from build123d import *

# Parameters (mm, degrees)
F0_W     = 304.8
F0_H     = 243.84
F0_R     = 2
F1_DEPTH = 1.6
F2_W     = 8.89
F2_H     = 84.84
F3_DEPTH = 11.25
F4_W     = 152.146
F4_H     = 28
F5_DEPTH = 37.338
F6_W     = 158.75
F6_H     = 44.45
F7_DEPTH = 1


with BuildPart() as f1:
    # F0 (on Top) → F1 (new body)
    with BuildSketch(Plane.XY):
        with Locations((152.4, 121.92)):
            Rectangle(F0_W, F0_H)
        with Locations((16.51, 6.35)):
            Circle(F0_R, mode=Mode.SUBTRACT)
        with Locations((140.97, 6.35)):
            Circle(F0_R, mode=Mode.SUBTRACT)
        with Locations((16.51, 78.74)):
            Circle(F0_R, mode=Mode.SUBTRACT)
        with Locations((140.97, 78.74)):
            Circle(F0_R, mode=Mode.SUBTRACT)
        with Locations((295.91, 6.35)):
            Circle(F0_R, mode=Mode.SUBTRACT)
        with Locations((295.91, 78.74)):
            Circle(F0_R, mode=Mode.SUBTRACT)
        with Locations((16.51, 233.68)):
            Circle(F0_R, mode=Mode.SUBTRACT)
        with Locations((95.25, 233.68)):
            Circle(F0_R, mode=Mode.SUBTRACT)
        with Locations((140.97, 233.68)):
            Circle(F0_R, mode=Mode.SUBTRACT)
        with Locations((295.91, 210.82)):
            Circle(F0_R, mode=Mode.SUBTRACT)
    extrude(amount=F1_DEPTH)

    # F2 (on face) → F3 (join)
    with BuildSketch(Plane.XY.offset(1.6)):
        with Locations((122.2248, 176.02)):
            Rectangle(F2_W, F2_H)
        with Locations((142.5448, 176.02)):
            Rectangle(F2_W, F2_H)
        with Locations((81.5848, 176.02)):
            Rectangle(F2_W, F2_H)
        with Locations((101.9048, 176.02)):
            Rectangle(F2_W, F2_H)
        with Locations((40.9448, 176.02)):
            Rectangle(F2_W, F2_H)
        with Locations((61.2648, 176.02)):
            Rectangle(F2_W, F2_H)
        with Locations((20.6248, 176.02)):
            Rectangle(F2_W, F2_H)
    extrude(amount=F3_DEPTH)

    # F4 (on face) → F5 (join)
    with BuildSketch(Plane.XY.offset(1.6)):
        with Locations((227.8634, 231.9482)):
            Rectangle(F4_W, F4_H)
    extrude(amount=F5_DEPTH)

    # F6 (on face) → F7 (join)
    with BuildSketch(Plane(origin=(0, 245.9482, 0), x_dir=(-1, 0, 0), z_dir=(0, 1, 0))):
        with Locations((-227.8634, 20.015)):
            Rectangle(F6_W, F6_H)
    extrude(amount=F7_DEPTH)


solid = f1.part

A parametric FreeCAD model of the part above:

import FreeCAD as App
import Part
import Sketcher

V = App.Vector
Q = App.Units.Quantity

doc = App.newDocument("Part")
body = doc.addObject("PartDesign::Body", "Body")

# Sketch on XY plane
sketch1 = body.newObject("Sketcher::SketchObject", "Sketch")
sketch1.AttachmentSupport = (doc.getObject("XY_Plane"), [""])
sketch1.MapMode = "FlatFace"
sketch1.addGeometry(Part.LineSegment(V(0, 243.84, 0), V(0, 0, 0)), False)
sketch1.addGeometry(Part.LineSegment(V(0, 0, 0), V(304.8, 0, 0)), False)
sketch1.addGeometry(Part.LineSegment(V(304.8, 0, 0), V(304.8, 243.84, 0)), False)
sketch1.addGeometry(Part.LineSegment(V(304.8, 243.84, 0), V(0, 243.84, 0)), False)
sketch1.addGeometry(Part.Circle(V(16.51, 6.35, 0), V(0, 0, 1), 2), False)
sketch1.addGeometry(Part.Circle(V(140.97, 6.35, 0), V(0, 0, 1), 2), False)
sketch1.addGeometry(Part.Circle(V(16.51, 78.74, 0), V(0, 0, 1), 2), False)
sketch1.addGeometry(Part.Circle(V(140.97, 78.74, 0), V(0, 0, 1), 2), False)
sketch1.addGeometry(Part.Circle(V(295.91, 6.35, 0), V(0, 0, 1), 2), False)
sketch1.addGeometry(Part.Circle(V(295.91, 78.74, 0), V(0, 0, 1), 2), False)
sketch1.addGeometry(Part.Circle(V(16.51, 233.68, 0), V(0, 0, 1), 2), False)
sketch1.addGeometry(Part.Circle(V(95.25, 233.68, 0), V(0, 0, 1), 2), False)
sketch1.addGeometry(Part.Circle(V(140.97, 233.68, 0), V(0, 0, 1), 2), False)
sketch1.addGeometry(Part.Circle(V(295.91, 210.82, 0), V(0, 0, 1), 2), False)
sketch1.addConstraint(Sketcher.Constraint("Coincident", 0, 2, 1, 1))
sketch1.addConstraint(Sketcher.Constraint("Coincident", 1, 2, 2, 1))
sketch1.addConstraint(Sketcher.Constraint("Coincident", 2, 2, 3, 1))
sketch1.addConstraint(Sketcher.Constraint("Coincident", 3, 2, 0, 1))
sketch1.addConstraint(Sketcher.Constraint("Vertical", 0))
sketch1.addConstraint(Sketcher.Constraint("Horizontal", 1))
sketch1.addConstraint(Sketcher.Constraint("Vertical", 2))
sketch1.addConstraint(Sketcher.Constraint("Horizontal", 3))
sketch1.addConstraint(Sketcher.Constraint("Coincident", 0, 2, -1, 1))
sketch1.addConstraint(Sketcher.Constraint("Equal", 4, 5))
sketch1.addConstraint(Sketcher.Constraint("Equal", 5, 6))
sketch1.addConstraint(Sketcher.Constraint("Equal", 6, 7))
sketch1.addConstraint(Sketcher.Constraint("Equal", 7, 8))
sketch1.addConstraint(Sketcher.Constraint("Equal", 8, 9))
sketch1.addConstraint(Sketcher.Constraint("Equal", 9, 10))
sketch1.addConstraint(Sketcher.Constraint("Equal", 10, 11))
sketch1.addConstraint(Sketcher.Constraint("Equal", 11, 12))
sketch1.addConstraint(Sketcher.Constraint("Equal", 12, 13))
sketch1.addConstraint(Sketcher.Constraint("Horizontal", 4, 3, 5, 3))
sketch1.addConstraint(Sketcher.Constraint("Horizontal", 6, 3, 7, 3))
sketch1.addConstraint(Sketcher.Constraint("Horizontal", 5, 3, 8, 3))
sketch1.addConstraint(Sketcher.Constraint("Horizontal", 7, 3, 9, 3))
sketch1.addConstraint(Sketcher.Constraint("Horizontal", 10, 3, 11, 3))
sketch1.addConstraint(Sketcher.Constraint("Horizontal", 11, 3, 12, 3))
sketch1.addConstraint(Sketcher.Constraint("Vertical", 4, 3, 6, 3))
sketch1.addConstraint(Sketcher.Constraint("Vertical", 5, 3, 7, 3))
sketch1.addConstraint(Sketcher.Constraint("Vertical", 8, 3, 9, 3))
sketch1.addConstraint(Sketcher.Constraint("Vertical", 6, 3, 10, 3))
sketch1.addConstraint(Sketcher.Constraint("Vertical", 7, 3, 12, 3))
sketch1.addConstraint(Sketcher.Constraint("Vertical", 9, 3, 13, 3))
sketch1.addConstraint(Sketcher.Constraint("DistanceX", 1, 1, 1, 2, Q("12 in")))
sketch1.addConstraint(Sketcher.Constraint("DistanceY", 0, 2, 0, 1, Q("9.6 in")))
sketch1.addConstraint(Sketcher.Constraint("DistanceX", 4, 3, 8, 3, Q("11 in")))
sketch1.addConstraint(Sketcher.Constraint("DistanceY", -1, 1, 6, 3, Q("3.1 in")))
sketch1.addConstraint(Sketcher.Constraint("DistanceY", -1, 1, 10, 3, Q("9.2 in")))
sketch1.addConstraint(Sketcher.Constraint("DistanceY", -1, 1, 13, 3, Q("8.3 in")))
sketch1.addConstraint(Sketcher.Constraint("DistanceX", 4, 3, 5, 3, Q("4.9 in")))
sketch1.addConstraint(Sketcher.Constraint("DistanceX", 10, 3, 11, 3, Q("3.1 in")))
sketch1.addConstraint(Sketcher.Constraint("Diameter", 4, Q("4 mm")))
sketch1.addConstraint(Sketcher.Constraint("DistanceX", -1, 1, 4, 3, Q("0.65 in")))
sketch1.addConstraint(Sketcher.Constraint("DistanceY", -1, 1, 4, 3, Q("0.25 in")))
pad1 = body.newObject("PartDesign::Pad", "Pad")
pad1.Profile = sketch1
pad1.Length = 1.6

# Sketch on XY plane
sketch2 = body.newObject("Sketcher::SketchObject", "Sketch001")
sketch2.AttachmentSupport = (doc.getObject("XY_Plane"), [""])
sketch2.MapMode = "FlatFace"
sketch2.AttachmentOffset = App.Placement(V(0, 0, 1.6), App.Rotation())
sketch2.addGeometry(Part.LineSegment(V(117.7798, 218.44, 0), V(117.7798, 133.6, 0)), False)
sketch2.addGeometry(Part.LineSegment(V(117.7798, 133.6, 0), V(126.6698, 133.6, 0)), False)
sketch2.addGeometry(Part.LineSegment(V(126.6698, 133.6, 0), V(126.6698, 218.44, 0)), False)
sketch2.addGeometry(Part.LineSegment(V(126.6698, 218.44, 0), V(117.7798, 218.44, 0)), False)
sketch2.addGeometry(Part.LineSegment(V(138.0998, 218.44, 0), V(138.0998, 133.6, 0)), False)
sketch2.addGeometry(Part.LineSegment(V(138.0998, 133.6, 0), V(146.9898, 133.6, 0)), False)
sketch2.addGeometry(Part.LineSegment(V(146.9898, 133.6, 0), V(146.9898, 218.44, 0)), False)
sketch2.addGeometry(Part.LineSegment(V(146.9898, 218.44, 0), V(138.0998, 218.44, 0)), False)
sketch2.addGeometry(Part.LineSegment(V(77.1398, 218.44, 0), V(77.1398, 133.6, 0)), False)
sketch2.addGeometry(Part.LineSegment(V(77.1398, 133.6, 0), V(86.0298, 133.6, 0)), False)
sketch2.addGeometry(Part.LineSegment(V(86.0298, 133.6, 0), V(86.0298, 218.44, 0)), False)
sketch2.addGeometry(Part.LineSegment(V(86.0298, 218.44, 0), V(77.1398, 218.44, 0)), False)
sketch2.addGeometry(Part.LineSegment(V(97.4598, 218.44, 0), V(97.4598, 133.6, 0)), False)
sketch2.addGeometry(Part.LineSegment(V(97.4598, 133.6, 0), V(106.3498, 133.6, 0)), False)
sketch2.addGeometry(Part.LineSegment(V(106.3498, 133.6, 0), V(106.3498, 218.44, 0)), False)
sketch2.addGeometry(Part.LineSegment(V(106.3498, 218.44, 0), V(97.4598, 218.44, 0)), False)
sketch2.addGeometry(Part.LineSegment(V(36.4998, 218.44, 0), V(36.4998, 133.6, 0)), False)
sketch2.addGeometry(Part.LineSegment(V(36.4998, 133.6, 0), V(45.3898, 133.6, 0)), False)
sketch2.addGeometry(Part.LineSegment(V(45.3898, 133.6, 0), V(45.3898, 218.44, 0)), False)
sketch2.addGeometry(Part.LineSegment(V(45.3898, 218.44, 0), V(36.4998, 218.44, 0)), False)
sketch2.addGeometry(Part.LineSegment(V(56.8198, 218.44, 0), V(56.8198, 133.6, 0)), False)
sketch2.addGeometry(Part.LineSegment(V(56.8198, 133.6, 0), V(65.7098, 133.6, 0)), False)
sketch2.addGeometry(Part.LineSegment(V(65.7098, 133.6, 0), V(65.7098, 218.44, 0)), False)
sketch2.addGeometry(Part.LineSegment(V(65.7098, 218.44, 0), V(56.8198, 218.44, 0)), False)
sketch2.addGeometry(Part.LineSegment(V(16.1798, 218.44, 0), V(16.1798, 133.6, 0)), False)
sketch2.addGeometry(Part.LineSegment(V(16.1798, 133.6, 0), V(25.0698, 133.6, 0)), False)
sketch2.addGeometry(Part.LineSegment(V(25.0698, 133.6, 0), V(25.0698, 218.44, 0)), False)
sketch2.addGeometry(Part.LineSegment(V(25.0698, 218.44, 0), V(16.1798, 218.44, 0)), False)
sketch2.addConstraint(Sketcher.Constraint("Coincident", 0, 2, 1, 1))
sketch2.addConstraint(Sketcher.Constraint("Coincident", 1, 2, 2, 1))
sketch2.addConstraint(Sketcher.Constraint("Coincident", 2, 2, 3, 1))
sketch2.addConstraint(Sketcher.Constraint("Coincident", 3, 2, 0, 1))
sketch2.addConstraint(Sketcher.Constraint("Coincident", 4, 2, 5, 1))
sketch2.addConstraint(Sketcher.Constraint("Coincident", 5, 2, 6, 1))
sketch2.addConstraint(Sketcher.Constraint("Coincident", 6, 2, 7, 1))
sketch2.addConstraint(Sketcher.Constraint("Coincident", 7, 2, 4, 1))
sketch2.addConstraint(Sketcher.Constraint("Coincident", 8, 2, 9, 1))
sketch2.addConstraint(Sketcher.Constraint("Coincident", 9, 2, 10, 1))
sketch2.addConstraint(Sketcher.Constraint("Coincident", 10, 2, 11, 1))
sketch2.addConstraint(Sketcher.Constraint("Coincident", 11, 2, 8, 1))
sketch2.addConstraint(Sketcher.Constraint("Coincident", 12, 2, 13, 1))
sketch2.addConstraint(Sketcher.Constraint("Coincident", 13, 2, 14, 1))
sketch2.addConstraint(Sketcher.Constraint("Coincident", 14, 2, 15, 1))
sketch2.addConstraint(Sketcher.Constraint("Coincident", 15, 2, 12, 1))
sketch2.addConstraint(Sketcher.Constraint("Coincident", 16, 2, 17, 1))
sketch2.addConstraint(Sketcher.Constraint("Coincident", 17, 2, 18, 1))
sketch2.addConstraint(Sketcher.Constraint("Coincident", 18, 2, 19, 1))
sketch2.addConstraint(Sketcher.Constraint("Coincident", 19, 2, 16, 1))
sketch2.addConstraint(Sketcher.Constraint("Coincident", 20, 2, 21, 1))
sketch2.addConstraint(Sketcher.Constraint("Coincident", 21, 2, 22, 1))
sketch2.addConstraint(Sketcher.Constraint("Coincident", 22, 2, 23, 1))
sketch2.addConstraint(Sketcher.Constraint("Coincident", 23, 2, 20, 1))
sketch2.addConstraint(Sketcher.Constraint("Coincident", 24, 2, 25, 1))
sketch2.addConstraint(Sketcher.Constraint("Coincident", 25, 2, 26, 1))
sketch2.addConstraint(Sketcher.Constraint("Coincident", 26, 2, 27, 1))
sketch2.addConstraint(Sketcher.Constraint("Coincident", 27, 2, 24, 1))
sketch2.addConstraint(Sketcher.Constraint("Vertical", 0))
sketch2.addConstraint(Sketcher.Constraint("Horizontal", 1))
sketch2.addConstraint(Sketcher.Constraint("Vertical", 2))
sketch2.addConstraint(Sketcher.Constraint("Horizontal", 3))
sketch2.addConstraint(Sketcher.Constraint("Vertical", 4))
sketch2.addConstraint(Sketcher.Constraint("Horizontal", 5))
sketch2.addConstraint(Sketcher.Constraint("Vertical", 6))
sketch2.addConstraint(Sketcher.Constraint("Horizontal", 7))
sketch2.addConstraint(Sketcher.Constraint("Vertical", 8))
sketch2.addConstraint(Sketcher.Constraint("Horizontal", 9))
sketch2.addConstraint(Sketcher.Constraint("Vertical", 10))
sketch2.addConstraint(Sketcher.Constraint("Horizontal", 11))
sketch2.addConstraint(Sketcher.Constraint("Vertical", 12))
sketch2.addConstraint(Sketcher.Constraint("Horizontal", 13))
sketch2.addConstraint(Sketcher.Constraint("Vertical", 14))
sketch2.addConstraint(Sketcher.Constraint("Horizontal", 15))
sketch2.addConstraint(Sketcher.Constraint("Vertical", 16))
sketch2.addConstraint(Sketcher.Constraint("Horizontal", 17))
sketch2.addConstraint(Sketcher.Constraint("Vertical", 18))
sketch2.addConstraint(Sketcher.Constraint("Horizontal", 19))
sketch2.addConstraint(Sketcher.Constraint("Vertical", 20))
sketch2.addConstraint(Sketcher.Constraint("Horizontal", 21))
sketch2.addConstraint(Sketcher.Constraint("Vertical", 22))
sketch2.addConstraint(Sketcher.Constraint("Horizontal", 23))
sketch2.addConstraint(Sketcher.Constraint("Vertical", 24))
sketch2.addConstraint(Sketcher.Constraint("Horizontal", 25))
sketch2.addConstraint(Sketcher.Constraint("Vertical", 26))
sketch2.addConstraint(Sketcher.Constraint("Horizontal", 27))
sketch2.addConstraint(Sketcher.Constraint("Horizontal", 1, 2, 4, 2))
sketch2.addConstraint(Sketcher.Constraint("Horizontal", 3, 2, 6, 2))
sketch2.addConstraint(Sketcher.Constraint("Horizontal", 5, 2, 8, 2))
sketch2.addConstraint(Sketcher.Constraint("Horizontal", 7, 2, 10, 2))
sketch2.addConstraint(Sketcher.Constraint("Horizontal", 9, 2, 12, 2))
sketch2.addConstraint(Sketcher.Constraint("Horizontal", 11, 2, 14, 2))
sketch2.addConstraint(Sketcher.Constraint("Horizontal", 13, 2, 16, 2))
sketch2.addConstraint(Sketcher.Constraint("Horizontal", 15, 2, 18, 2))
sketch2.addConstraint(Sketcher.Constraint("Horizontal", 17, 2, 20, 2))
sketch2.addConstraint(Sketcher.Constraint("Horizontal", 19, 2, 22, 2))
sketch2.addConstraint(Sketcher.Constraint("Horizontal", 21, 2, 24, 2))
sketch2.addConstraint(Sketcher.Constraint("Horizontal", 23, 2, 26, 2))
sketch2.addConstraint(Sketcher.Constraint("Equal", 3, 5))
sketch2.addConstraint(Sketcher.Constraint("Equal", 7, 9))
sketch2.addConstraint(Sketcher.Constraint("Equal", 11, 13))
sketch2.addConstraint(Sketcher.Constraint("Equal", 15, 17))
sketch2.addConstraint(Sketcher.Constraint("Equal", 19, 21))
sketch2.addConstraint(Sketcher.Constraint("Equal", 23, 25))
sketch2.addConstraint(Sketcher.Constraint("DistanceX", 1, 1, 1, 2, Q("0.35 in")))
sketch2.addConstraint(Sketcher.Constraint("DistanceY", -1, 1, 2, 2, Q("8.6 in")))
sketch2.addConstraint(Sketcher.Constraint("DistanceX", 0, 2, 4, 2, Q("0.8 in")))
sketch2.addConstraint(Sketcher.Constraint("DistanceX", 8, 2, 0, 2, Q("1.6 in")))
sketch2.addConstraint(Sketcher.Constraint("DistanceX", 12, 2, 0, 2, Q("0.8 in")))
sketch2.addConstraint(Sketcher.Constraint("DistanceX", 16, 2, 8, 2, Q("1.6 in")))
sketch2.addConstraint(Sketcher.Constraint("DistanceX", 20, 2, 8, 2, Q("0.8 in")))
sketch2.addConstraint(Sketcher.Constraint("DistanceX", 24, 2, 16, 2, Q("0.8 in")))
sketch2.addConstraint(Sketcher.Constraint("DistanceX", -1, 1, 0, 2, Q("4.637 in")))
sketch2.addConstraint(Sketcher.Constraint("DistanceY", 0, 2, 0, 1, Q("84.84 mm")))
pad2 = body.newObject("PartDesign::Pad", "Pad001")
pad2.Profile = sketch2
pad2.Length = 11.25

# Sketch on XY plane
sketch3 = body.newObject("Sketcher::SketchObject", "Sketch002")
sketch3.AttachmentSupport = (doc.getObject("XY_Plane"), [""])
sketch3.MapMode = "FlatFace"
sketch3.AttachmentOffset = App.Placement(V(0, 0, 1.6), App.Rotation())
sketch3.addGeometry(Part.LineSegment(V(151.7904, 245.9482, 0), V(151.7904, 217.9482, 0)), False)
sketch3.addGeometry(Part.LineSegment(V(151.7904, 217.9482, 0), V(303.9364, 217.9482, 0)), False)
sketch3.addGeometry(Part.LineSegment(V(303.9364, 217.9482, 0), V(303.9364, 245.9482, 0)), False)
sketch3.addGeometry(Part.LineSegment(V(303.9364, 245.9482, 0), V(151.7904, 245.9482, 0)), False)
sketch3.addConstraint(Sketcher.Constraint("Coincident", 0, 2, 1, 1))
sketch3.addConstraint(Sketcher.Constraint("Coincident", 1, 2, 2, 1))
sketch3.addConstraint(Sketcher.Constraint("Coincident", 2, 2, 3, 1))
sketch3.addConstraint(Sketcher.Constraint("Coincident", 3, 2, 0, 1))
sketch3.addConstraint(Sketcher.Constraint("Vertical", 0))
sketch3.addConstraint(Sketcher.Constraint("Horizontal", 1))
sketch3.addConstraint(Sketcher.Constraint("Vertical", 2))
sketch3.addConstraint(Sketcher.Constraint("Horizontal", 3))
sketch3.addConstraint(Sketcher.Constraint("DistanceX", 1, 1, 1, 2, Q("5.99 in")))
sketch3.addConstraint(Sketcher.Constraint("DistanceX", -1, 1, 0, 2, Q("5.976 in")))
sketch3.addConstraint(Sketcher.Constraint("DistanceY", -1, 1, 2, 2, Q("9.683 in")))
sketch3.addConstraint(Sketcher.Constraint("DistanceY", 0, 2, 0, 1, Q("28 mm")))
pad3 = body.newObject("PartDesign::Pad", "Pad002")
pad3.Profile = sketch3
pad3.Length = Q("1.47 in")

# Sketch on XZ plane
sketch4 = body.newObject("Sketcher::SketchObject", "Sketch003")
sketch4.AttachmentSupport = (doc.getObject("XZ_Plane"), [""])
sketch4.MapMode = "FlatFace"
sketch4.AttachmentOffset = App.Placement(V(0, 0, -9.683 * 25.4), App.Rotation())
sketch4.addGeometry(Part.LineSegment(V(307.2384, 42.24, 0), V(307.2384, -2.21, 0)), False)
sketch4.addGeometry(Part.LineSegment(V(307.2384, -2.21, 0), V(148.4884, -2.21, 0)), False)
sketch4.addGeometry(Part.LineSegment(V(148.4884, -2.21, 0), V(148.4884, 42.24, 0)), False)
sketch4.addGeometry(Part.LineSegment(V(148.4884, 42.24, 0), V(307.2384, 42.24, 0)), False)
sketch4.addConstraint(Sketcher.Constraint("Coincident", 0, 2, 1, 1))
sketch4.addConstraint(Sketcher.Constraint("Coincident", 1, 2, 2, 1))
sketch4.addConstraint(Sketcher.Constraint("Coincident", 2, 2, 3, 1))
sketch4.addConstraint(Sketcher.Constraint("Coincident", 3, 2, 0, 1))
sketch4.addConstraint(Sketcher.Constraint("Vertical", 0))
sketch4.addConstraint(Sketcher.Constraint("Horizontal", 1))
sketch4.addConstraint(Sketcher.Constraint("Vertical", 2))
sketch4.addConstraint(Sketcher.Constraint("Horizontal", 3))
sketch4.addConstraint(Sketcher.Constraint("DistanceX", 1, 2, 1, 1, Q("6.25 in")))
sketch4.addConstraint(Sketcher.Constraint("DistanceY", 0, 2, 0, 1, Q("1.75 in")))
sketch4.addConstraint(Sketcher.Constraint("DistanceX", -1, 1, 0, 2, Q("12.096 in")))
sketch4.addConstraint(Sketcher.Constraint("DistanceY", 0, 2, -1, 1, Q("2.21 mm")))
pad4 = body.newObject("PartDesign::Pad", "Pad003")
pad4.Profile = sketch4
pad4.Length = 1
pad4.Reversed = True

doc.recompute()
